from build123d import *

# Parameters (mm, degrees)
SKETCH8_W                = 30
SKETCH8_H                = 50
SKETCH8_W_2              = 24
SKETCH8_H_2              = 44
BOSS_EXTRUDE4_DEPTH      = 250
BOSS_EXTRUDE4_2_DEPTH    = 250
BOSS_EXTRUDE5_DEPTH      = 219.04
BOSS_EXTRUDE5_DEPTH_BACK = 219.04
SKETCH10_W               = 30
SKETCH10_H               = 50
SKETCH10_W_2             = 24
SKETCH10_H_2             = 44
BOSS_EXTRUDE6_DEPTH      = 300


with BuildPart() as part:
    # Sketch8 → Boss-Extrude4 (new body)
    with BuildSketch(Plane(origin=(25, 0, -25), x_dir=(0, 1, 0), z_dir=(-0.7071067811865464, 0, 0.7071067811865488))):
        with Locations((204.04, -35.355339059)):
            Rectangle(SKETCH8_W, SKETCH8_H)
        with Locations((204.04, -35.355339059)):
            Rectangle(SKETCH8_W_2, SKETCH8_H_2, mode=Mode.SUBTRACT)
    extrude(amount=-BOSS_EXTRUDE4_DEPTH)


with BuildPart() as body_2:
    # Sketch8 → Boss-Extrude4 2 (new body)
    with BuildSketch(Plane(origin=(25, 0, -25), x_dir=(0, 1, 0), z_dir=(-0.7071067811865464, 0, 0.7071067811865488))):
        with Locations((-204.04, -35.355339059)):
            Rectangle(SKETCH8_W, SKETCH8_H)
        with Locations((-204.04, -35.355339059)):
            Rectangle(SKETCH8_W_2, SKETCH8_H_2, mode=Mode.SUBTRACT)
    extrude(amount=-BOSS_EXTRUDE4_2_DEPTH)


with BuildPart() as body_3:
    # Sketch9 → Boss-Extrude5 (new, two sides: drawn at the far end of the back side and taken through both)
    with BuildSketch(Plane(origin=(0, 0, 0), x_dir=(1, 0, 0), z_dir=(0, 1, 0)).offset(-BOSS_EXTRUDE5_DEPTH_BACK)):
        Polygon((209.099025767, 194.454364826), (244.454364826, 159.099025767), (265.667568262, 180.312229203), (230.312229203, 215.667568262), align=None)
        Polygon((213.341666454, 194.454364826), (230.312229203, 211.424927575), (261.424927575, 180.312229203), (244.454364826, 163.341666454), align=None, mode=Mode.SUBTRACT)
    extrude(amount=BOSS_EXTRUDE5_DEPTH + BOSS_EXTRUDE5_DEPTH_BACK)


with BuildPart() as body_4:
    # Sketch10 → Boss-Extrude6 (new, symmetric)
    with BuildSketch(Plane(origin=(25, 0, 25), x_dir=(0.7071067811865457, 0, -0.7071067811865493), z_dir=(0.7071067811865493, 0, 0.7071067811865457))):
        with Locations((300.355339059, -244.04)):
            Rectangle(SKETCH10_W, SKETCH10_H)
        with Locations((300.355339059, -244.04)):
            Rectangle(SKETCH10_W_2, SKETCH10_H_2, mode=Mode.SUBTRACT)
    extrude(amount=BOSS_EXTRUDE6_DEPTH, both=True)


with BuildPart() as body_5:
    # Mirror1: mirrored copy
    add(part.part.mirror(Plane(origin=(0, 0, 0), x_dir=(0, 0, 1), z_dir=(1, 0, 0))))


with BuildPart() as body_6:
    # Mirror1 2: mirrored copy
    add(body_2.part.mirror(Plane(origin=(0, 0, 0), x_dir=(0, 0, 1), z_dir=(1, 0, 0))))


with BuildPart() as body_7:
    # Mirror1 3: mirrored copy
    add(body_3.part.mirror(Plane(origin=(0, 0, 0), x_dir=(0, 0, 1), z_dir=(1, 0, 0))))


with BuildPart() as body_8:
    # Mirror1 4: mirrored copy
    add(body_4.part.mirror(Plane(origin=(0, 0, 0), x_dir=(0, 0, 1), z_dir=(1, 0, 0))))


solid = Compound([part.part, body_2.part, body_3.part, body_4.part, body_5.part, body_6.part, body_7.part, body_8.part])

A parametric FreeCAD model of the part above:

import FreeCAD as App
import Part
import Sketcher

V = App.Vector


def add_polygon(sketch, points):
    """Adds a closed chain of lines whose ends are joined by coincident constraints."""
    first, n = sketch.GeometryCount, len(points)
    for a, b in zip(points, points[1:] + points[:1]):
        sketch.addGeometry(Part.LineSegment(App.Vector(*a, 0), App.Vector(*b, 0)), False)
    for i in range(n):
        sketch.addConstraint(Sketcher.Constraint("Coincident", first + i, 2, first + (i + 1) % n, 1))

doc = App.newDocument("Part")
body = doc.addObject("PartDesign::Body", "Body")

sketch1 = body.newObject("Sketcher::SketchObject", "Sketch")
sketch1.Placement = App.Placement(V(25, 0, -25), App.Rotation(V(0, 1, 0), V(-0.707106781, 0, -0.707106781), V(-0.707106781, 0, 0.707106781), "ZXY"))
add_polygon(sketch1, [(189.04, -10.355339), (189.04, -60.355339), (219.04, -60.355339), (219.04, -10.355339)])
add_polygon(sketch1, [(216.04, -57.355339), (192.04, -57.355339), (192.04, -13.355339), (216.04, -13.355339)])
sketch1.addConstraint(Sketcher.Constraint("Vertical", 0))
sketch1.addConstraint(Sketcher.Constraint("Horizontal", 1))
sketch1.addConstraint(Sketcher.Constraint("Vertical", 2))
sketch1.addConstraint(Sketcher.Constraint("Horizontal", 3))
sketch1.addConstraint(Sketcher.Constraint("Horizontal", 4))
sketch1.addConstraint(Sketcher.Constraint("Vertical", 5))
sketch1.addConstraint(Sketcher.Constraint("Horizontal", 6))
sketch1.addConstraint(Sketcher.Constraint("Vertical", 7))
sketch1.addConstraint(Sketcher.Constraint("DistanceX", 1, 1, 1, 2, 30.0))
sketch1.addConstraint(Sketcher.Constraint("DistanceX", 4, 2, 4, 1, 24.0))
sketch1.addConstraint(Sketcher.Constraint("DistanceY", 0, 2, 0, 1, 50.0))
sketch1.addConstraint(Sketcher.Constraint("DistanceY", 5, 1, 5, 2, 44.0))
sketch1.addConstraint(Sketcher.Constraint("DistanceX", 0, 2, 4, 2, 3.0))
sketch1.addConstraint(Sketcher.Constraint("DistanceY", 0, 2, 4, 2, 3.0))
sketch1.addConstraint(Sketcher.Constraint("DistanceX", -1, 1, 0, 2, 189.04))
sketch1.addConstraint(Sketcher.Constraint("DistanceY", 0, 2, -1, 1, 60.355339))
pad1 = body.newObject("PartDesign::Pad", "Pad")
pad1.Profile = sketch1
pad1.Length = 250
pad1.Reversed = True
body2 = doc.addObject("PartDesign::Body", "Body001")

sketch2 = body2.newObject("Sketcher::SketchObject", "Sketch001")
sketch2.Placement = App.Placement(V(25, 0, -25), App.Rotation(V(0, 1, 0), V(-0.707106781, 0, -0.707106781), V(-0.707106781, 0, 0.707106781), "ZXY"))
add_polygon(sketch2, [(-219.04, -10.355339), (-219.04, -60.355339), (-189.04, -60.355339), (-189.04, -10.355339)])
add_polygon(sketch2, [(-192.04, -57.355339), (-216.04, -57.355339), (-216.04, -13.355339), (-192.04, -13.355339)])
sketch2.addConstraint(Sketcher.Constraint("Vertical", 0))
sketch2.addConstraint(Sketcher.Constraint("Horizontal", 1))
sketch2.addConstraint(Sketcher.Constraint("Vertical", 2))
sketch2.addConstraint(Sketcher.Constraint("Horizontal", 3))
sketch2.addConstraint(Sketcher.Constraint("Horizontal", 4))
sketch2.addConstraint(Sketcher.Constraint("Vertical", 5))
sketch2.addConstraint(Sketcher.Constraint("Horizontal", 6))
sketch2.addConstraint(Sketcher.Constraint("Vertical", 7))
sketch2.addConstraint(Sketcher.Constraint("DistanceX", 1, 1, 1, 2, 30.0))
sketch2.addConstraint(Sketcher.Constraint("DistanceX", 4, 2, 4, 1, 24.0))
sketch2.addConstraint(Sketcher.Constraint("DistanceY", 0, 2, 0, 1, 50.0))
sketch2.addConstraint(Sketcher.Constraint("DistanceY", 5, 1, 5, 2, 44.0))
sketch2.addConstraint(Sketcher.Constraint("DistanceX", 0, 2, 4, 2, 3.0))
sketch2.addConstraint(Sketcher.Constraint("DistanceY", 0, 2, 4, 2, 3.0))
sketch2.addConstraint(Sketcher.Constraint("DistanceX", 0, 2, -1, 1, 219.04))
sketch2.addConstraint(Sketcher.Constraint("DistanceY", 0, 2, -1, 1, 60.355339))
pad2 = body2.newObject("PartDesign::Pad", "Pad001")
pad2.Profile = sketch2
pad2.Length = 250
pad2.Reversed = True
body3 = doc.addObject("PartDesign::Body", "Body002")

sketch3 = body3.newObject("Sketcher::SketchObject", "Sketch002")
sketch3.AttachmentSupport = (doc.getObject("XZ_Plane002"), [""])
sketch3.MapMode = "FlatFace"
add_polygon(sketch3, [(209.099026, -194.454365), (244.454365, -159.099026), (265.667568, -180.312229), (230.312229, -215.667568)])
add_polygon(sketch3, [(244.454365, -163.341666), (213.341666, -194.454365), (230.312229, -211.424928), (261.424928, -180.312229)])
sketch3.addConstraint(Sketcher.Constraint("Perpendicular", 0, 1))
sketch3.addConstraint(Sketcher.Constraint("Perpendicular", 1, 2))
sketch3.addConstraint(Sketcher.Constraint("Perpendicular", 2, 3))
sketch3.addConstraint(Sketcher.Constraint("Perpendicular", 3, 4))
sketch3.addConstraint(Sketcher.Constraint("Perpendicular", 4, 5))
sketch3.addConstraint(Sketcher.Constraint("Perpendicular", 5, 6))
sketch3.addConstraint(Sketcher.Constraint("Perpendicular", 6, 7))
sketch3.addConstraint(Sketcher.Constraint("Horizontal", 3, 2, 4, 2))
sketch3.addConstraint(Sketcher.Constraint("Horizontal", 1, 2, 6, 2))
sketch3.addConstraint(Sketcher.Constraint("Vertical", 2, 2, 5, 2))
sketch3.addConstraint(Sketcher.Constraint("Vertical", 0, 2, 7, 2))
sketch3.addConstraint(Sketcher.Constraint("Distance", 0, 50.0))
sketch3.addConstraint(Sketcher.Constraint("Distance", 1, 30.0))
sketch3.addConstraint(Sketcher.Constraint("Distance", 4, 44.0))
sketch3.addConstraint(Sketcher.Constraint("DistanceX", -1, 1, 1, 2, 265.667568))
sketch3.addConstraint(Sketcher.Constraint("DistanceY", 1, 2, -1, 1, 180.312229))
pad3 = body3.newObject("PartDesign::Pad", "Pad002")
pad3.Profile = sketch3
pad3.Type = "TwoLengths"
pad3.Length = 219.04
pad3.Length2 = 219.04
pad3.Reversed = True
body4 = doc.addObject("PartDesign::Body", "Body003")

sketch4 = body4.newObject("Sketcher::SketchObject", "Sketch003")
sketch4.Placement = App.Placement(V(25, 0, 25), App.Rotation(V(0.707106781, 0, -0.707106781), V(0, 0.999999999, 0), V(0.707106781, 0, 0.707106781), "ZXY"))
add_polygon(sketch4, [(285.355339, -219.04), (285.355339, -269.04), (315.355339, -269.04), (315.355339, -219.04)])
add_polygon(sketch4, [(312.355339, -266.04), (288.355339, -266.04), (288.355339, -222.04), (312.355339, -222.04)])
sketch4.addConstraint(Sketcher.Constraint("Vertical", 0))
sketch4.addConstraint(Sketcher.Constraint("Horizontal", 1))
sketch4.addConstraint(Sketcher.Constraint("Vertical", 2))
sketch4.addConstraint(Sketcher.Constraint("Horizontal", 3))
sketch4.addConstraint(Sketcher.Constraint("Horizontal", 4))
sketch4.addConstraint(Sketcher.Constraint("Vertical", 5))
sketch4.addConstraint(Sketcher.Constraint("Horizontal", 6))
sketch4.addConstraint(Sketcher.Constraint("Vertical", 7))
sketch4.addConstraint(Sketcher.Constraint("DistanceX", 1, 1, 1, 2, 30.0))
sketch4.addConstraint(Sketcher.Constraint("DistanceX", 4, 2, 4, 1, 24.0))
sketch4.addConstraint(Sketcher.Constraint("DistanceY", 0, 2, 0, 1, 50.0))
sketch4.addConstraint(Sketcher.Constraint("DistanceY", 5, 1, 5, 2, 44.0))
sketch4.addConstraint(Sketcher.Constraint("DistanceX", 0, 2, 4, 2, 3.0))
sketch4.addConstraint(Sketcher.Constraint("DistanceY", 0, 2, 4, 2, 3.0))
sketch4.addConstraint(Sketcher.Constraint("DistanceY", 0, 2, -1, 1, 269.04))
sketch4.addConstraint(Sketcher.Constraint("DistanceX", -1, 1, 0, 2, 285.355339))
pad4 = body4.newObject("PartDesign::Pad", "Pad003")
pad4.Profile = sketch4
pad4.Length = 600
pad4.Midplane = True
body5 = doc.addObject("PartDesign::Body", "Body004")
doc.recompute()

mirroring = doc.addObject("Part::Mirroring", "Mirroring")
mirroring.Source = body
mirroring.Base = V(0, 0, 0)
mirroring.Normal = V(1, 0, 0)
body5.BaseFeature = mirroring
doc.recompute()
body6 = doc.addObject("PartDesign::Body", "Body005")
doc.recompute()

mirroring2 = doc.addObject("Part::Mirroring", "Mirroring001")
mirroring2.Source = body2
mirroring2.Base = V(0, 0, 0)
mirroring2.Normal = V(1, 0, 0)
body6.BaseFeature = mirroring2
doc.recompute()
body7 = doc.addObject("PartDesign::Body", "Body006")
doc.recompute()

mirroring3 = doc.addObject("Part::Mirroring", "Mirroring002")
mirroring3.Source = body3
mirroring3.Base = V(0, 0, 0)
mirroring3.Normal = V(1, 0, 0)
body7.BaseFeature = mirroring3
doc.recompute()
body8 = doc.addObject("PartDesign::Body", "Body007")
doc.recompute()

mirroring4 = doc.addObject("Part::Mirroring", "Mirroring003")
mirroring4.Source = body4
mirroring4.Base = V(0, 0, 0)
mirroring4.Normal = V(1, 0, 0)
body8.BaseFeature = mirroring4
doc.recompute()
mirroring.Visibility = False
mirroring2.Visibility = False
mirroring3.Visibility = False
mirroring4.Visibility = False

doc.recompute()
